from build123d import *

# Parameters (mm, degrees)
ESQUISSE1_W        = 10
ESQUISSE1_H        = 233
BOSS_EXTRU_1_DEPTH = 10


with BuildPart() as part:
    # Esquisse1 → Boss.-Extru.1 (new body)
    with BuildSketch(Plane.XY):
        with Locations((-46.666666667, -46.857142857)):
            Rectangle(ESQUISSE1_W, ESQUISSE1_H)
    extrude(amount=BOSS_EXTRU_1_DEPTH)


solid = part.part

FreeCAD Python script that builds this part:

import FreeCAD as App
import Part
import Sketcher
Q = App.Units.Quantity

doc = App.newDocument("Part")
body = doc.addObject("PartDesign::Body", "Body")

# Sketch on XY plane
sketch1 = body.newObject("Sketcher::SketchObject", "Sketch")
sketch1.AttachmentSupport = (doc.getObject("XY_Plane"), [""])
sketch1.MapMode = "FlatFace"
sketch1.addGeometry(Part.LineSegment(App.Vector(-51.666667, 69.642857, 0), App.Vector(-51.666667, -163.357143, 0)), False)
sketch1.addGeometry(Part.LineSegment(App.Vector(-51.666667, -163.357143, 0), App.Vector(-41.666667, -163.357143, 0)), False)
sketch1.addGeometry(Part.LineSegment(App.Vector(-41.666667, -163.357143, 0), App.Vector(-41.666667, 69.642857, 0)), False)
sketch1.addGeometry(Part.LineSegment(App.Vector(-41.666667, 69.642857, 0), App.Vector(-51.666667, 69.642857, 0)), False)
sketch1.addConstraint(Sketcher.Constraint("Coincident", 0, 2, 1, 1))
sketch1.addConstraint(Sketcher.Constraint("Coincident", 1, 2, 2, 1))
sketch1.addConstraint(Sketcher.Constraint("Coincident", 2, 2, 3, 1))
sketch1.addConstraint(Sketcher.Constraint("Coincident", 3, 2, 0, 1))
sketch1.addConstraint(Sketcher.Constraint("Vertical", 0))
sketch1.addConstraint(Sketcher.Constraint("Horizontal", 1))
sketch1.addConstraint(Sketcher.Constraint("Vertical", 2))
sketch1.addConstraint(Sketcher.Constraint("Horizontal", 3))
sketch1.addConstraint(Sketcher.Constraint("DistanceX", 1, 1, 1, 2, Q("10 mm")))
sketch1.addConstraint(Sketcher.Constraint("DistanceY", 0, 2, 0, 1, Q("233 mm")))
sketch1.addConstraint(Sketcher.Constraint("DistanceX", 0, 2, -1, 1, Q("51.666667 mm")))
sketch1.addConstraint(Sketcher.Constraint("DistanceY", 0, 2, -1, 1, Q("163.357143 mm")))
pad1 = body.newObject("PartDesign::Pad", "Pad")
pad1.Profile = sketch1
pad1.Length = 10

doc.recompute()
